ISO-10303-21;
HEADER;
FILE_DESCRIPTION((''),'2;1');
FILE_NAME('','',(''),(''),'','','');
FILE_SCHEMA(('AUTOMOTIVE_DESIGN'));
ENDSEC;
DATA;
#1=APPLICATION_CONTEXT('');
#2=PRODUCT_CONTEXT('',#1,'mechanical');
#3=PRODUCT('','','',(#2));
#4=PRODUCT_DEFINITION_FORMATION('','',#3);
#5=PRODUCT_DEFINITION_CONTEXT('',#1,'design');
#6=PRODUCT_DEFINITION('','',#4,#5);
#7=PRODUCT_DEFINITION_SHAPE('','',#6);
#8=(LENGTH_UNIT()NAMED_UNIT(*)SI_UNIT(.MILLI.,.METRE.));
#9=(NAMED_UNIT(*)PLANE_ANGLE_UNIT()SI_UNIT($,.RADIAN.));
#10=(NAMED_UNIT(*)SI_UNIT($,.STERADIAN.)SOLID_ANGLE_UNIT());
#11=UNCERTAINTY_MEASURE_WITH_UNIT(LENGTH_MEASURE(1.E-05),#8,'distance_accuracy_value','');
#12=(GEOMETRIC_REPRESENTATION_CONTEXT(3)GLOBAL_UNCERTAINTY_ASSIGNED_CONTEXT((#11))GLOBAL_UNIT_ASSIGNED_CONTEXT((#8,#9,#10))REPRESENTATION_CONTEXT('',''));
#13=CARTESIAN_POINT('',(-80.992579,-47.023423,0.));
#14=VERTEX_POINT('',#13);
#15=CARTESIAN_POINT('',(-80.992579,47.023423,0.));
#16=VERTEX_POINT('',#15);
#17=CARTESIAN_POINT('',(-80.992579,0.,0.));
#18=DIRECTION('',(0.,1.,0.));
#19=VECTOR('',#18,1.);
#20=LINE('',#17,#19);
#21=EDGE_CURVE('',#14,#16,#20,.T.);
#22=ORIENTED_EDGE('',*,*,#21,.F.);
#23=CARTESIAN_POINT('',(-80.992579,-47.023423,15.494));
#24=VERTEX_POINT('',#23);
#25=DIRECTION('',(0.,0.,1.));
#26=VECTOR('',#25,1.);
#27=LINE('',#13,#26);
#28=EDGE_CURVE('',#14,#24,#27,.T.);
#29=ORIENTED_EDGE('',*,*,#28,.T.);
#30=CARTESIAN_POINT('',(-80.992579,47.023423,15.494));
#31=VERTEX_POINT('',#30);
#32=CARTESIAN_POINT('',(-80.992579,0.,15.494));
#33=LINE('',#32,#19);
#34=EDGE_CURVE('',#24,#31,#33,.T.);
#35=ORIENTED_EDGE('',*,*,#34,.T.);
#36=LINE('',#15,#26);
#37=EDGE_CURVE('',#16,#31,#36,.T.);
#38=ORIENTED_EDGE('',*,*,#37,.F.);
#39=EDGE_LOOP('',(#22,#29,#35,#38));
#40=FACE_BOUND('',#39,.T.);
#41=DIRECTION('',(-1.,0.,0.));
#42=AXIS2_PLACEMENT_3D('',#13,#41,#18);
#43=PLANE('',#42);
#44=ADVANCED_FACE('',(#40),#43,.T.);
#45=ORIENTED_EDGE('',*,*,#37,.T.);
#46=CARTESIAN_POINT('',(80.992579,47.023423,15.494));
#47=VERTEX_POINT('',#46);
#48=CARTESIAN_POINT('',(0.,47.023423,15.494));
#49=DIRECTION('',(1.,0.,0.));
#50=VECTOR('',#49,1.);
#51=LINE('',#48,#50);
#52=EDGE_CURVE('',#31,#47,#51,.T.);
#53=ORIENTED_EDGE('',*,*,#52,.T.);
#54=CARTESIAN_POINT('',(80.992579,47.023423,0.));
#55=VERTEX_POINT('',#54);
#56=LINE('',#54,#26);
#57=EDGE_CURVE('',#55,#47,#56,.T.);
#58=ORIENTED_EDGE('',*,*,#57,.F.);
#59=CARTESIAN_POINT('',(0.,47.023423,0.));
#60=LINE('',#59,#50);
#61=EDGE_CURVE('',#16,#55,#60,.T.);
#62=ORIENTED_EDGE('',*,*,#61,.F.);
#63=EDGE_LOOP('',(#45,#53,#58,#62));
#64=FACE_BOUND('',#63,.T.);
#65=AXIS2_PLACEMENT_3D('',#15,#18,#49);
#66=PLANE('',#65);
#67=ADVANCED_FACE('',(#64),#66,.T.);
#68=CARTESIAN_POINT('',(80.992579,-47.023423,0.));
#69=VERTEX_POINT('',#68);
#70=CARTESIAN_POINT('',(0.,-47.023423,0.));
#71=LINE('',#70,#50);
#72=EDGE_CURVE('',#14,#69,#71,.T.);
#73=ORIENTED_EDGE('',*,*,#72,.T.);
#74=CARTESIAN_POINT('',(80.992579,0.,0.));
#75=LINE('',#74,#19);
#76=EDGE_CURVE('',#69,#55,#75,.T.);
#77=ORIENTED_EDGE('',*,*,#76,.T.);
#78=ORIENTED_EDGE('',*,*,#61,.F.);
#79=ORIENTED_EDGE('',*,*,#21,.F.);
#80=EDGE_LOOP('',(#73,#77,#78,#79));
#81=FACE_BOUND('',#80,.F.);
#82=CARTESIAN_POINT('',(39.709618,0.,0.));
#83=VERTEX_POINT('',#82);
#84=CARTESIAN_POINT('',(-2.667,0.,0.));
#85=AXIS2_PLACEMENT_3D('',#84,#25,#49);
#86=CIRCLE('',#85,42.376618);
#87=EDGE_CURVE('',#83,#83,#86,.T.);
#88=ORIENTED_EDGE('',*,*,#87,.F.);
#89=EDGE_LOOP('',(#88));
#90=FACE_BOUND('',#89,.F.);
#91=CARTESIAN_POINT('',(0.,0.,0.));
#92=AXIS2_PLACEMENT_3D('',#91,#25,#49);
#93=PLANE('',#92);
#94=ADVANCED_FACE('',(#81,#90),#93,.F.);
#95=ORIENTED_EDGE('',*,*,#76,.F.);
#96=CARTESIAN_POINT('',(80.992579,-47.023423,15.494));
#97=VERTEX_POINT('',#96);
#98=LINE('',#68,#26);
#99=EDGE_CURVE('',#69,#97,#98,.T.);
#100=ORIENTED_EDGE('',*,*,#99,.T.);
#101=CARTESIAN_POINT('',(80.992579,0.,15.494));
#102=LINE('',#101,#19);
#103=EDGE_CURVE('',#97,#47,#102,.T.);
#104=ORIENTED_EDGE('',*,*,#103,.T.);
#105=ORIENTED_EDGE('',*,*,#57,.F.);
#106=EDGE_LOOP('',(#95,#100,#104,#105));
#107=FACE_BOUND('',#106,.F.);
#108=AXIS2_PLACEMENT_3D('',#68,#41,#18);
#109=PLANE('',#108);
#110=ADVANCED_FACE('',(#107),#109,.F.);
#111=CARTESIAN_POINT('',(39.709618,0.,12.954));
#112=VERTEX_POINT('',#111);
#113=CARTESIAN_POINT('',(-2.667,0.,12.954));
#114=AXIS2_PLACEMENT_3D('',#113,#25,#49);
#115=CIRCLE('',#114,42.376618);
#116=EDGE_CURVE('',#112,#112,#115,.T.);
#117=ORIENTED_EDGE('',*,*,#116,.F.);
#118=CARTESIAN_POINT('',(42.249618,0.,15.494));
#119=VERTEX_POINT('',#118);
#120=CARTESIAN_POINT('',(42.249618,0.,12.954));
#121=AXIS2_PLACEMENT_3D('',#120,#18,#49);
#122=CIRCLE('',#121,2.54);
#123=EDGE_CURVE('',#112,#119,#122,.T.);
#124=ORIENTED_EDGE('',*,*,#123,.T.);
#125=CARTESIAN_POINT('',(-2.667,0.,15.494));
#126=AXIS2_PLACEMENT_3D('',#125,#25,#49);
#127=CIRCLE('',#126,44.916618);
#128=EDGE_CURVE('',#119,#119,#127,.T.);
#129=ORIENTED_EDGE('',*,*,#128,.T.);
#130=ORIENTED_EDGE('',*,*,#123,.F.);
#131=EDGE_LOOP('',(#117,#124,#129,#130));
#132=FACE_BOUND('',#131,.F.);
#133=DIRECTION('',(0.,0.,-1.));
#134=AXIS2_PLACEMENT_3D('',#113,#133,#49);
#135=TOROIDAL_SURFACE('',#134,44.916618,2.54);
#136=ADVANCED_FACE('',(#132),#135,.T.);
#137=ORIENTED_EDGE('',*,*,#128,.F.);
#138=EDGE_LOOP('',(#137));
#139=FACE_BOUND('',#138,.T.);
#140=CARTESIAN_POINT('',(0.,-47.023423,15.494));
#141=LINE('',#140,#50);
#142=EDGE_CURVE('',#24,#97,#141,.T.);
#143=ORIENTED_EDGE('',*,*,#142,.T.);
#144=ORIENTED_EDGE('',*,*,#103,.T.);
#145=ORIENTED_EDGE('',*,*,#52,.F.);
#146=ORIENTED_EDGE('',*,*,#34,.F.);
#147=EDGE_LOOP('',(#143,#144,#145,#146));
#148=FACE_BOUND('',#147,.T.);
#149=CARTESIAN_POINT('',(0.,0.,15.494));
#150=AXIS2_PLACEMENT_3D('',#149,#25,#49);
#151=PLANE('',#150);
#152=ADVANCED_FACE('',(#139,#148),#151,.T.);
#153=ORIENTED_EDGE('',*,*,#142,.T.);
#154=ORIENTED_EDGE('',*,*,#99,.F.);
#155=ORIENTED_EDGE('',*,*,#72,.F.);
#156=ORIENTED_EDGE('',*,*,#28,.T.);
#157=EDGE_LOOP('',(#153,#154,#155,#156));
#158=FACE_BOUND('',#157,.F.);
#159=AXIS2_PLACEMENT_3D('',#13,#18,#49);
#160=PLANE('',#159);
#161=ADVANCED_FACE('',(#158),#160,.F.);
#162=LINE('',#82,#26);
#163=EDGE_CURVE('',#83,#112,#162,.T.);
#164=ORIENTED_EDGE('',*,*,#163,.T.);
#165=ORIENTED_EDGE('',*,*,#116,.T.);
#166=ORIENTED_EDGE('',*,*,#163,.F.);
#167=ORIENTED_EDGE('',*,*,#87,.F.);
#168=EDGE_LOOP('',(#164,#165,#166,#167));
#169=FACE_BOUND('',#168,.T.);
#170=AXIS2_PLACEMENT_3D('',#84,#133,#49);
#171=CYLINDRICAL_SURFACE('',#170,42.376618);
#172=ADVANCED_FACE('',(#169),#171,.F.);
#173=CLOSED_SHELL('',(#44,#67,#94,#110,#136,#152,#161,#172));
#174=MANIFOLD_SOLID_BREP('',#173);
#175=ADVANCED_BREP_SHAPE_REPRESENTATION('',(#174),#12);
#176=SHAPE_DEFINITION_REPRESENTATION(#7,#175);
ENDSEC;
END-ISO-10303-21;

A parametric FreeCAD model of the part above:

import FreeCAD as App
import Part
import Sketcher
from FreeCAD import Vector
Q = App.Units.Quantity


def edges_at(feature, points):
    """Names of the edges that pass closest to the given points."""
    edges = feature.Shape.Edges
    near = lambda p: min(range(len(edges)), key=lambda i: edges[i].distToShape(Part.Vertex(*p))[0])
    return sorted({f"Edge{near(p) + 1}" for p in points})

doc = App.newDocument("Part")
params = doc.addObject("Spreadsheet::Sheet", "Params")
for row, (alias, value) in enumerate([
    ("pad1_length", "0.61 in"),
    ("fillet_radius", "0.1 in"),
], start=1):
    params.set(f"A{row}", alias)
    params.set(f"B{row}", "=" + value)
    params.setAlias(f"B{row}", alias)

body = doc.addObject("PartDesign::Body", "Body")

# Sketch on XY plane
sketch1 = body.newObject("Sketcher::SketchObject", "Sketch")
sketch1.AttachmentSupport = (doc.getObject("XY_Plane"), [""])
sketch1.MapMode = "FlatFace"
sketch1.addGeometry([
    Part.LineSegment(Vector(-81, 47, 0), Vector(-81, -47, 0)),  # 0
    Part.LineSegment(Vector(-81, -47, 0), Vector(81, -47, 0)),  # 1
    Part.LineSegment(Vector(81, -47, 0), Vector(81, 47, 0)),  # 2
    Part.LineSegment(Vector(81, 47, 0), Vector(-81, 47, 0)),  # 3
    Part.Circle(Vector(-3, 0, 0), Vector(0, 0, 1), 42),  # 4
], False)
sketch1.addConstraint([
    Sketcher.Constraint("Coincident", 0, 2, 1, 1),
    Sketcher.Constraint("Coincident", 1, 2, 2, 1),
    Sketcher.Constraint("Coincident", 2, 2, 3, 1),
    Sketcher.Constraint("Coincident", 3, 2, 0, 1),
    Sketcher.Constraint("Vertical", 0),
    Sketcher.Constraint("Horizontal", 1),
    Sketcher.Constraint("Vertical", 2),
    Sketcher.Constraint("Horizontal", 3),
    Sketcher.Constraint("Symmetric", 0, 2, 2, 2, -1, 1),
    Sketcher.Constraint("PointOnObject", 4, 3, -1),
    Sketcher.Constraint("DistanceX", 4, 3, -1, 1, Q("0.105 in")),
    Sketcher.Constraint("Diameter", 4, Q("84.753236 mm")),
    Sketcher.Constraint("DistanceX", 1, 1, 1, 2, Q("161.985158 mm")),
    Sketcher.Constraint("DistanceY", 0, 2, 0, 1, Q("94.046846 mm")),
])
pad1 = body.newObject("PartDesign::Pad", "Pad")
pad1.Profile = sketch1
pad1.setExpression("Length", "Params.pad1_length")
doc.recompute()

fillet = body.newObject("PartDesign::Fillet", "Fillet")
fillet.Base = (pad1, edges_at(pad1, [(-45.044, 0, 15.494)]))
fillet.setExpression("Radius", "Params.fillet_radius")

doc.recompute()
